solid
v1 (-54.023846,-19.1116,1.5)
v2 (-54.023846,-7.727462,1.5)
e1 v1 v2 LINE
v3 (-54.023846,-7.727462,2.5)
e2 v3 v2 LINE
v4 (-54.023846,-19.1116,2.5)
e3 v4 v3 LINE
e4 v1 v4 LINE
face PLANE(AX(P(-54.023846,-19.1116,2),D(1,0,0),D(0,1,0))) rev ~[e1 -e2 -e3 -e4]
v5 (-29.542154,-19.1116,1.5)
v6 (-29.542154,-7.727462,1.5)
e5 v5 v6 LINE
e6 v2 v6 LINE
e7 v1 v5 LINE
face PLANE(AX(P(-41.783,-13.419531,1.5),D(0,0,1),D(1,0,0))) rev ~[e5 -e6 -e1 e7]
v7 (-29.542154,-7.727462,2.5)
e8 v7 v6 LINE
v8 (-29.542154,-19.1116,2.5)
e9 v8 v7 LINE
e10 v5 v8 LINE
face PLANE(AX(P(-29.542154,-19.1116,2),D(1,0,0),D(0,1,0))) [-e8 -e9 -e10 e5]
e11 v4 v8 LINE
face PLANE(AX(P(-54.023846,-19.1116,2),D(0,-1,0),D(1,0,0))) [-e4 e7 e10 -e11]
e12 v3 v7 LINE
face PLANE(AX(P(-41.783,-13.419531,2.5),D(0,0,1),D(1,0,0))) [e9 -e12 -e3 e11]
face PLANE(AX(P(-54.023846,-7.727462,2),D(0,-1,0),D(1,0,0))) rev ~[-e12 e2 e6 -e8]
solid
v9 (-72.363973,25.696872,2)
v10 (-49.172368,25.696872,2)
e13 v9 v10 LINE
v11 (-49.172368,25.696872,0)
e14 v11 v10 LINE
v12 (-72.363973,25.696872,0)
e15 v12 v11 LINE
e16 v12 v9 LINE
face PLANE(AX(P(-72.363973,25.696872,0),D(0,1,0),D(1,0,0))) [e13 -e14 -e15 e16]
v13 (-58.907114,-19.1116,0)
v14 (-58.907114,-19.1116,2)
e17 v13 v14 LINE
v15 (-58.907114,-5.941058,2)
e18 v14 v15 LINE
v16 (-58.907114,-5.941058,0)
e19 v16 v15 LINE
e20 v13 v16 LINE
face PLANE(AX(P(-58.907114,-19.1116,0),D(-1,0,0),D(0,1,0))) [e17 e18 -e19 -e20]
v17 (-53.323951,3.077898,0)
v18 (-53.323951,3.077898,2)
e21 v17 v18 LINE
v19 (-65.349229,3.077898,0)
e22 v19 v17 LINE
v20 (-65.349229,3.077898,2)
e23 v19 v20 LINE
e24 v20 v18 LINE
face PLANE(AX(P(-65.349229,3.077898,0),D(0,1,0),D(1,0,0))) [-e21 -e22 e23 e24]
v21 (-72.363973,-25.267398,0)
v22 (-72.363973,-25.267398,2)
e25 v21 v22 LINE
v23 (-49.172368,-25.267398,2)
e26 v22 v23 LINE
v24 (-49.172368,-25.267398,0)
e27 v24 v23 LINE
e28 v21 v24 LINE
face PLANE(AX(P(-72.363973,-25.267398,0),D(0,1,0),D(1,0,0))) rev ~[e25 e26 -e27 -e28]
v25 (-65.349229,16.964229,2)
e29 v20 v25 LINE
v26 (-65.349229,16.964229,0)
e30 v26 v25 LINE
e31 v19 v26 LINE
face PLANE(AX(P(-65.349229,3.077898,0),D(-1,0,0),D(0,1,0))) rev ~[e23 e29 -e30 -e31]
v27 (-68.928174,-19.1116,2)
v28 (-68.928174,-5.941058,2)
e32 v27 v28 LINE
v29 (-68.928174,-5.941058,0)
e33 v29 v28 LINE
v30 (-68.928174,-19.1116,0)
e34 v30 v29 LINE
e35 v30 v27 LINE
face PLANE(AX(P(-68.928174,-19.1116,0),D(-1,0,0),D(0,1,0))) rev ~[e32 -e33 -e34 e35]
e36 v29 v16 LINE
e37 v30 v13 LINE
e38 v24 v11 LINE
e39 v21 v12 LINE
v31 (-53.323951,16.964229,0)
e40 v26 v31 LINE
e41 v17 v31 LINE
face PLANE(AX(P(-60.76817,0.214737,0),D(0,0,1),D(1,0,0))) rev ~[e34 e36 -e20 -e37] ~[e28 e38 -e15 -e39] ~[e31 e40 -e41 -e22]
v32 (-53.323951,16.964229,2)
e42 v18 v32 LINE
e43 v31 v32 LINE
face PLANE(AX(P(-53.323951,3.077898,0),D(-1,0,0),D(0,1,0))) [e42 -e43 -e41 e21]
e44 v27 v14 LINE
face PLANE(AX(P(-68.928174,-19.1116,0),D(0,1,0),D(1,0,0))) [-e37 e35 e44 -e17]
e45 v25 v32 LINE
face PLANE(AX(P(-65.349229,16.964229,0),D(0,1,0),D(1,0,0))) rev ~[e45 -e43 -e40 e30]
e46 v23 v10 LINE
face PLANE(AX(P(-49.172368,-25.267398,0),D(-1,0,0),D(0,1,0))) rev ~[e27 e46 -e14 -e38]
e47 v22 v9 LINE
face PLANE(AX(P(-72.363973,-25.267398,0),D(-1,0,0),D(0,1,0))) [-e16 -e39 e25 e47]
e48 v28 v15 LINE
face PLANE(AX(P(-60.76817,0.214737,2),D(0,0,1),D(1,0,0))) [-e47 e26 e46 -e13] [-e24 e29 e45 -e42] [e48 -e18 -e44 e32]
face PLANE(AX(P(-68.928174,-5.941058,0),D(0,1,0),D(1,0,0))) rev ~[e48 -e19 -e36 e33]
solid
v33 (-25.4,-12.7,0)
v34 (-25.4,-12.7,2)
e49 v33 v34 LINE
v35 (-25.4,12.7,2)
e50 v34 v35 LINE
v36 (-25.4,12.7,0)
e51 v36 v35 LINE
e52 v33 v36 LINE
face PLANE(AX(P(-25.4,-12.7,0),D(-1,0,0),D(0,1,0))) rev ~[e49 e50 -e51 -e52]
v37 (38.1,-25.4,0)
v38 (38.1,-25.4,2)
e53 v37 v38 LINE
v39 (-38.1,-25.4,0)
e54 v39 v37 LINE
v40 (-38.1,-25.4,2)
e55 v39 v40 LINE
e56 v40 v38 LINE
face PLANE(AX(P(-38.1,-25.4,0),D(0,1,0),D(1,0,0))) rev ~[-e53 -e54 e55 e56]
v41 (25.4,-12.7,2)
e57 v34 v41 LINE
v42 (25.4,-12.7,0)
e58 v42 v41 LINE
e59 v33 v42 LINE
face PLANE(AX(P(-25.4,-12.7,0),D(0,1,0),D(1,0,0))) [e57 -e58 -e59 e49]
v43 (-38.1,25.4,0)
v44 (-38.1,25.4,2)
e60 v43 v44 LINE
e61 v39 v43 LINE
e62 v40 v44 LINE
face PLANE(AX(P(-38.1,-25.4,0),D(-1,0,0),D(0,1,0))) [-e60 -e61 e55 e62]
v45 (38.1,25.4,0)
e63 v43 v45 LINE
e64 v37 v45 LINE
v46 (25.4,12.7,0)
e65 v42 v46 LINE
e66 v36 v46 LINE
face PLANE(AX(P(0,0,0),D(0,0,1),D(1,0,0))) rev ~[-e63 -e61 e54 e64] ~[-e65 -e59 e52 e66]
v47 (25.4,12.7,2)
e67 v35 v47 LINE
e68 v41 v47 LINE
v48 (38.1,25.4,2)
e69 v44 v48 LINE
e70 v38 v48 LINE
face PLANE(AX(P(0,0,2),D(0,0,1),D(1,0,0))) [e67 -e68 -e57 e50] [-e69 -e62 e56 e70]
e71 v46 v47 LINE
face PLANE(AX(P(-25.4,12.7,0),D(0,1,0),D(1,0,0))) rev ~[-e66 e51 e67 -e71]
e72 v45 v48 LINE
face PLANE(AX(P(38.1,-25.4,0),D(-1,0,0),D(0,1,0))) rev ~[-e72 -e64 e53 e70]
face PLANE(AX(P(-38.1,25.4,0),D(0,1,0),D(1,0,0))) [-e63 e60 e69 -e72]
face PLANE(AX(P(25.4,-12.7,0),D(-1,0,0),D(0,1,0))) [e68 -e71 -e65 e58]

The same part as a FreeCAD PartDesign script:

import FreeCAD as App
import Part
import Sketcher
Q = App.Units.Quantity

doc = App.newDocument("Part")
body = doc.addObject("PartDesign::Body", "Body")
body.AllowCompound = True

# Sketch on XY plane
sketch1 = body.newObject("Sketcher::SketchObject", "Sketch")
sketch1.AttachmentSupport = (doc.getObject("XY_Plane"), [""])
sketch1.MapMode = "FlatFace"
sketch1.addGeometry([
    Part.LineSegment(App.Vector(-38, 25, 0), App.Vector(-38, -25, 0)),  # 0
    Part.LineSegment(App.Vector(-38, -25, 0), App.Vector(38, -25, 0)),  # 1
    Part.LineSegment(App.Vector(38, -25, 0), App.Vector(38, 25, 0)),  # 2
    Part.LineSegment(App.Vector(38, 25, 0), App.Vector(-38, 25, 0)),  # 3
    Part.LineSegment(App.Vector(25, -13, 0), App.Vector(-25, -13, 0)),  # 4
    Part.LineSegment(App.Vector(-25, -13, 0), App.Vector(-25, 13, 0)),  # 5
    Part.LineSegment(App.Vector(-25, 13, 0), App.Vector(25, 13, 0)),  # 6
    Part.LineSegment(App.Vector(25, 13, 0), App.Vector(25, -13, 0)),  # 7
    Part.LineSegment(App.Vector(-72, 26, 0), App.Vector(-72, -25, 0)),  # 8
    Part.LineSegment(App.Vector(-72, -25, 0), App.Vector(-49, -25, 0)),  # 9
    Part.LineSegment(App.Vector(-49, -25, 0), App.Vector(-49, 26, 0)),  # 10
    Part.LineSegment(App.Vector(-49, 26, 0), App.Vector(-72, 26, 0)),  # 11
    Part.LineSegment(App.Vector(-59, -19, 0), App.Vector(-69, -19, 0)),  # 12
    Part.LineSegment(App.Vector(-69, -19, 0), App.Vector(-69, -6, 0)),  # 13
    Part.LineSegment(App.Vector(-69, -6, 0), App.Vector(-59, -6, 0)),  # 14
    Part.LineSegment(App.Vector(-59, -6, 0), App.Vector(-59, -19, 0)),  # 15
    Part.LineSegment(App.Vector(-53, 3, 0), App.Vector(-65, 3, 0)),  # 16
    Part.LineSegment(App.Vector(-65, 3, 0), App.Vector(-65, 17, 0)),  # 17
    Part.LineSegment(App.Vector(-65, 17, 0), App.Vector(-53, 17, 0)),  # 18
    Part.LineSegment(App.Vector(-53, 17, 0), App.Vector(-53, 3, 0)),  # 19
], False)
sketch1.addConstraint([
    Sketcher.Constraint("Coincident", 0, 2, 1, 1),
    Sketcher.Constraint("Coincident", 1, 2, 2, 1),
    Sketcher.Constraint("Coincident", 2, 2, 3, 1),
    Sketcher.Constraint("Coincident", 3, 2, 0, 1),
    Sketcher.Constraint("Coincident", 4, 2, 5, 1),
    Sketcher.Constraint("Coincident", 5, 2, 6, 1),
    Sketcher.Constraint("Coincident", 6, 2, 7, 1),
    Sketcher.Constraint("Coincident", 7, 2, 4, 1),
    Sketcher.Constraint("Coincident", 8, 2, 9, 1),
    Sketcher.Constraint("Coincident", 9, 2, 10, 1),
    Sketcher.Constraint("Coincident", 10, 2, 11, 1),
    Sketcher.Constraint("Coincident", 11, 2, 8, 1),
    Sketcher.Constraint("Coincident", 12, 2, 13, 1),
    Sketcher.Constraint("Coincident", 13, 2, 14, 1),
    Sketcher.Constraint("Coincident", 14, 2, 15, 1),
    Sketcher.Constraint("Coincident", 15, 2, 12, 1),
    Sketcher.Constraint("Coincident", 16, 2, 17, 1),
    Sketcher.Constraint("Coincident", 17, 2, 18, 1),
    Sketcher.Constraint("Coincident", 18, 2, 19, 1),
    Sketcher.Constraint("Coincident", 19, 2, 16, 1),
    Sketcher.Constraint("Vertical", 0),
    Sketcher.Constraint("Horizontal", 1),
    Sketcher.Constraint("Vertical", 2),
    Sketcher.Constraint("Horizontal", 3),
    Sketcher.Constraint("Horizontal", 4),
    Sketcher.Constraint("Vertical", 5),
    Sketcher.Constraint("Horizontal", 6),
    Sketcher.Constraint("Vertical", 7),
    Sketcher.Constraint("Vertical", 8),
    Sketcher.Constraint("Horizontal", 9),
    Sketcher.Constraint("Vertical", 10),
    Sketcher.Constraint("Horizontal", 11),
    Sketcher.Constraint("Horizontal", 12),
    Sketcher.Constraint("Vertical", 13),
    Sketcher.Constraint("Horizontal", 14),
    Sketcher.Constraint("Vertical", 15),
    Sketcher.Constraint("Horizontal", 16),
    Sketcher.Constraint("Vertical", 17),
    Sketcher.Constraint("Horizontal", 18),
    Sketcher.Constraint("Vertical", 19),
    Sketcher.Constraint("Symmetric", 0, 2, 2, 2, -1, 1),
    Sketcher.Constraint("Symmetric", 4, 2, 6, 2, -1, 1),
    Sketcher.Constraint("Equal", 6, 0),
    Sketcher.Constraint("DistanceX", 1, 1, 1, 2, Q("3 in")),
    Sketcher.Constraint("DistanceX", 4, 2, 4, 1, Q("2 in")),
    Sketcher.Constraint("DistanceY", 5, 1, 5, 2, Q("1 in")),
    Sketcher.Constraint("DistanceY", 13, 2, -1, 1, Q("0.2338999 in")),
    Sketcher.Constraint("DistanceX", 12, 2, 12, 1, 10.021061),
    Sketcher.Constraint("DistanceY", 8, 2, 8, 1, 50.96427),
    Sketcher.Constraint("DistanceY", 13, 1, 13, 2, 13.170541),
    Sketcher.Constraint("DistanceY", 17, 1, 17, 2, 13.886331),
    Sketcher.Constraint("DistanceY", 8, 2, -1, 1, 25.267398),
    Sketcher.Constraint("DistanceY", -1, 1, 16, 2, 3.077898),
    Sketcher.Constraint("DistanceX", 8, 2, 12, 2, 3.435798),
    Sketcher.Constraint("DistanceX", 9, 1, 9, 2, 23.191605),
    Sketcher.Constraint("DistanceX", 16, 2, 16, 1, 12.025278),
    Sketcher.Constraint("DistanceX", 16, 2, -1, 1, 65.349229),
    Sketcher.Constraint("DistanceX", 17, 2, 10, 2, 16.176861),
])
pad1 = body.newObject("PartDesign::Pad", "Pad")
pad1.Profile = sketch1
pad1.Length = 2
body2 = doc.addObject("PartDesign::Body", "Body001")

# Sketch on XY plane
sketch2 = body2.newObject("Sketcher::SketchObject", "Sketch001")
sketch2.AttachmentSupport = (doc.getObject("XY_Plane001"), [""])
sketch2.MapMode = "FlatFace"
sketch2.AttachmentOffset = App.Placement(App.Vector(0, 0, 2), App.Rotation())
sketch2.addGeometry([
    Part.LineSegment(App.Vector(-54, -8, 0), App.Vector(-54, -19, 0)),
    Part.LineSegment(App.Vector(-54, -19, 0), App.Vector(-30, -19, 0)),
    Part.LineSegment(App.Vector(-30, -19, 0), App.Vector(-30, -8, 0)),
    Part.LineSegment(App.Vector(-30, -8, 0), App.Vector(-54, -8, 0)),
], False)
sketch2.addConstraint([
    Sketcher.Constraint("Coincident", 0, 2, 1, 1),
    Sketcher.Constraint("Coincident", 1, 2, 2, 1),
    Sketcher.Constraint("Coincident", 2, 2, 3, 1),
    Sketcher.Constraint("Coincident", 3, 2, 0, 1),
    Sketcher.Constraint("Vertical", 0),
    Sketcher.Constraint("Horizontal", 1),
    Sketcher.Constraint("Vertical", 2),
    Sketcher.Constraint("Horizontal", 3),
    Sketcher.Constraint("DistanceY", 0, 2, -1, 1, 19.1116),
    Sketcher.Constraint("DistanceX", 1, 1, 1, 2, 24.481693),
    Sketcher.Constraint("DistanceY", 0, 2, 0, 1, 11.384138),
    Sketcher.Constraint("DistanceX", 0, 2, -1, 1, 54.023846),
])
pad2 = body2.newObject("PartDesign::Pad", "Pad001")
pad2.Profile = sketch2
pad2.Length = 1
pad2.Midplane = True

doc.recompute()
